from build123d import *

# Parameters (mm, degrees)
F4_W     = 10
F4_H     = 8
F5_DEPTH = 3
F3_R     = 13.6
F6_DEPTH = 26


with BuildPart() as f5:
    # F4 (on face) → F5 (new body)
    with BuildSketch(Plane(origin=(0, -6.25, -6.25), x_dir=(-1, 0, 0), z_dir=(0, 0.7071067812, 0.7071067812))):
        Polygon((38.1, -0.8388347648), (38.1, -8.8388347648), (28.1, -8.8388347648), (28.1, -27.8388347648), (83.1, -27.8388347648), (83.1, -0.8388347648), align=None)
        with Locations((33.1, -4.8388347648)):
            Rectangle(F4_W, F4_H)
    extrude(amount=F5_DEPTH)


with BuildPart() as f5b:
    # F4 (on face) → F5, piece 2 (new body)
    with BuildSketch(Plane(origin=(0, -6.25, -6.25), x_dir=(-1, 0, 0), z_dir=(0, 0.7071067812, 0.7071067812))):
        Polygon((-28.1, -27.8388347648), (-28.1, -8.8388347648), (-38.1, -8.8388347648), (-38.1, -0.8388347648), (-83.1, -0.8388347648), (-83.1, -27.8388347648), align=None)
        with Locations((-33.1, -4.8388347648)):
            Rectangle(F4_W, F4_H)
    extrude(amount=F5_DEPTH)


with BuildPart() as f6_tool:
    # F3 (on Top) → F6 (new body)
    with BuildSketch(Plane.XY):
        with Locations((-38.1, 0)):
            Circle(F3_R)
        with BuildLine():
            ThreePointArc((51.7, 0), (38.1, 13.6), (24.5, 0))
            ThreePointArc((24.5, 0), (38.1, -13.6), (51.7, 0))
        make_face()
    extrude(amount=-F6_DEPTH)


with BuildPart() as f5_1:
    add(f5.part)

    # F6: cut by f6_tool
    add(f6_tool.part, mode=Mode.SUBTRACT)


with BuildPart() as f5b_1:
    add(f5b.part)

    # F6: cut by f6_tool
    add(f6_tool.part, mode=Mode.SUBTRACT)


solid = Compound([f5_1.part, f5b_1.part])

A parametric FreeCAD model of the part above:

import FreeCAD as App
import Part
import Sketcher
from FreeCAD import Vector

doc = App.newDocument("Part")
body = doc.addObject("PartDesign::Body", "Body")

# Sketch on an angled plane
sketch1 = body.newObject("Sketcher::SketchObject", "Sketch")
sketch1.Placement = App.Placement(Vector(0, -6.25, -6.25), App.Rotation(Vector(-1, 0, 0), Vector(0, -0.707106781, 0.707106781), Vector(0, 0.707106781, 0.707106781), "ZXY"))
sketch1.addGeometry([
    Part.LineSegment(Vector(28, -28, 0), Vector(83, -28, 0)),
    Part.LineSegment(Vector(83, -28, 0), Vector(83, -1, 0)),
    Part.LineSegment(Vector(83, -1, 0), Vector(28, -1, 0)),
    Part.LineSegment(Vector(28, -1, 0), Vector(28, -28, 0)),
], False)
sketch1.addConstraint([
    Sketcher.Constraint("Coincident", 0, 2, 1, 1),
    Sketcher.Constraint("Coincident", 1, 2, 2, 1),
    Sketcher.Constraint("Coincident", 2, 2, 3, 1),
    Sketcher.Constraint("Coincident", 3, 2, 0, 1),
    Sketcher.Constraint("Horizontal", 0),
    Sketcher.Constraint("Vertical", 1),
    Sketcher.Constraint("Horizontal", 2),
    Sketcher.Constraint("Vertical", 3),
    Sketcher.Constraint("DistanceX", 0, 1, 0, 2, 55.0),
    Sketcher.Constraint("DistanceY", 1, 1, 1, 2, 27.0),
    Sketcher.Constraint("DistanceX", -1, 1, 0, 2, 83.1),
    Sketcher.Constraint("DistanceY", 0, 2, -1, 1, 27.838835),
])
pad1 = body.newObject("PartDesign::Pad", "Pad")
pad1.Profile = sketch1
pad1.Length = 3
body2 = doc.addObject("PartDesign::Body", "Body001")

# Sketch on an angled plane
sketch2 = body2.newObject("Sketcher::SketchObject", "Sketch001")
sketch2.Placement = App.Placement(Vector(0, -6.25, -6.25), App.Rotation(Vector(-1, 0, 0), Vector(0, -0.707106781, 0.707106781), Vector(0, 0.707106781, 0.707106781), "ZXY"))
sketch2.addGeometry([
    Part.LineSegment(Vector(-28, -28, 0), Vector(-28, -1, 0)),
    Part.LineSegment(Vector(-28, -1, 0), Vector(-83, -1, 0)),
    Part.LineSegment(Vector(-83, -1, 0), Vector(-83, -28, 0)),
    Part.LineSegment(Vector(-83, -28, 0), Vector(-28, -28, 0)),
], False)
sketch2.addConstraint([
    Sketcher.Constraint("Coincident", 0, 2, 1, 1),
    Sketcher.Constraint("Coincident", 1, 2, 2, 1),
    Sketcher.Constraint("Coincident", 2, 2, 3, 1),
    Sketcher.Constraint("Coincident", 3, 2, 0, 1),
    Sketcher.Constraint("Vertical", 0),
    Sketcher.Constraint("Horizontal", 1),
    Sketcher.Constraint("Vertical", 2),
    Sketcher.Constraint("Horizontal", 3),
    Sketcher.Constraint("DistanceX", 1, 2, 1, 1, 55.0),
    Sketcher.Constraint("DistanceY", 0, 1, 0, 2, 27.0),
    Sketcher.Constraint("DistanceX", 0, 2, -1, 1, 28.1),
    Sketcher.Constraint("DistanceY", 0, 2, -1, 1, 0.838835),
])
pad2 = body2.newObject("PartDesign::Pad", "Pad001")
pad2.Profile = sketch2
pad2.Length = 3
body3 = doc.addObject("PartDesign::Body", "Body002")
body3.AllowCompound = True

# Sketch on XY plane
sketch3 = body3.newObject("Sketcher::SketchObject", "Sketch002")
sketch3.AttachmentSupport = (doc.getObject("XY_Plane002"), [""])
sketch3.MapMode = "FlatFace"
sketch3.addGeometry([
    Part.Circle(Vector(-38, 0, 0), Vector(0, 0, 1), 14),
    Part.Circle(Vector(38, 0, 0), Vector(0, 0, 1), 14),
], False)
sketch3.addConstraint([
    Sketcher.Constraint("Equal", 0, 1),
    Sketcher.Constraint("Symmetric", 0, 3, 1, 3, -1, 1),
    Sketcher.Constraint("PointOnObject", 0, 3, -1),
    Sketcher.Constraint("Diameter", 0, 27.2),
    Sketcher.Constraint("DistanceX", 0, 3, -1, 1, 38.1),
])
pad3 = body3.newObject("PartDesign::Pad", "Pad002")
pad3.Profile = sketch3
pad3.Length = 26
pad3.Reversed = True
doc.recompute()

body4 = doc.addObject("PartDesign::Body", "Body003")
body4.BaseFeature = body3
boolean = body.newObject("PartDesign::Boolean", "Boolean")
boolean.Type = "Cut"
boolean.addObjects([body4])
doc.recompute()

boolean2 = body2.newObject("PartDesign::Boolean", "Boolean001")
boolean2.Type = "Cut"
boolean2.addObjects([body3])

doc.recompute()
